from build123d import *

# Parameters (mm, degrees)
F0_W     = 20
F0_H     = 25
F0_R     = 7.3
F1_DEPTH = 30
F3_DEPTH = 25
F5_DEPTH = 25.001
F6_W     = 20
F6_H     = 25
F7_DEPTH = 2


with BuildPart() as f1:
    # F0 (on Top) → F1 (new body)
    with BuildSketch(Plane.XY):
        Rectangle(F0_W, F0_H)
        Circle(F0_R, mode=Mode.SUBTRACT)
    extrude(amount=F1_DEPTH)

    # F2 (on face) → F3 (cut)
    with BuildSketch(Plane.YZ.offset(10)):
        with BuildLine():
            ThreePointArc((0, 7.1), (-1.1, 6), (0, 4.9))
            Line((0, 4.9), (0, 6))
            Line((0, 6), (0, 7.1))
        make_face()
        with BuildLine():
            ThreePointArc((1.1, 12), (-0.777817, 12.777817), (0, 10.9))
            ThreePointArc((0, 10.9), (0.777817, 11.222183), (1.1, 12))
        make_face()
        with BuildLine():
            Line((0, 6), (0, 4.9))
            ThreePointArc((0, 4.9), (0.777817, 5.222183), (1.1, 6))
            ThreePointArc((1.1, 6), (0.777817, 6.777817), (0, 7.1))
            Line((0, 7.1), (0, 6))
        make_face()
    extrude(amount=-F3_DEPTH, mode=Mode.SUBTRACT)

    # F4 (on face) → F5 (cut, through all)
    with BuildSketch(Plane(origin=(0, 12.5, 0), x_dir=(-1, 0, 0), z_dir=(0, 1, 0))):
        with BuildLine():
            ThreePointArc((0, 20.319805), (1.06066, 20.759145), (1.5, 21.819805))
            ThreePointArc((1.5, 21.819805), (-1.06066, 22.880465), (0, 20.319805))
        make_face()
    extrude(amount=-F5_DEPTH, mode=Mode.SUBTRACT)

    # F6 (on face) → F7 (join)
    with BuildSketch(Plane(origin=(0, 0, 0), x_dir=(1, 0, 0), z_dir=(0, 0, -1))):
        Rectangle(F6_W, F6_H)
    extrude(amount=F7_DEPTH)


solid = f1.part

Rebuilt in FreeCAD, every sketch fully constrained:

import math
import FreeCAD as App
import Part
import Sketcher

doc = App.newDocument("Part")
params = doc.addObject("Spreadsheet::Sheet", "Params")
for row, (alias, value) in enumerate([
    ("sketch1_diameter", "14.6 mm"),
    ("sketch1_width", "20 mm"),
    ("sketch1_height", "25 mm"),
    ("pad1_length", "30 mm"),
    ("sketch2_radius", "1.1 mm"),
    ("pocket1_length", "25 mm"),
    ("sketch3_radius", "1.500001 mm"),
    ("sketch4_width", "20 mm"),
    ("sketch4_height", "25 mm"),
    ("pad2_length", "2 mm"),
], start=1):
    params.set(f"A{row}", alias)
    params.set(f"B{row}", "=" + value)
    params.setAlias(f"B{row}", alias)

body = doc.addObject("PartDesign::Body", "Body")

sketch1 = body.newObject("Sketcher::SketchObject", "Sketch")
sketch1.AttachmentSupport = (doc.getObject("XY_Plane"), [""])
sketch1.MapMode = "FlatFace"
sketch1.addGeometry(Part.LineSegment(App.Vector(-10, 12, 0), App.Vector(-10, -12, 0)), False)
sketch1.addGeometry(Part.LineSegment(App.Vector(-10, -12, 0), App.Vector(10, -12, 0)), False)
sketch1.addGeometry(Part.LineSegment(App.Vector(10, -12, 0), App.Vector(10, 12, 0)), False)
sketch1.addGeometry(Part.LineSegment(App.Vector(10, 12, 0), App.Vector(-10, 12, 0)), False)
sketch1.addGeometry(Part.Circle(App.Vector(0, 0, 0), App.Vector(0, 0, 1), 7), False)
sketch1.addConstraint(Sketcher.Constraint("Coincident", 0, 2, 1, 1))
sketch1.addConstraint(Sketcher.Constraint("Coincident", 1, 2, 2, 1))
sketch1.addConstraint(Sketcher.Constraint("Coincident", 2, 2, 3, 1))
sketch1.addConstraint(Sketcher.Constraint("Coincident", 3, 2, 0, 1))
sketch1.addConstraint(Sketcher.Constraint("Vertical", 0))
sketch1.addConstraint(Sketcher.Constraint("Horizontal", 1))
sketch1.addConstraint(Sketcher.Constraint("Vertical", 2))
sketch1.addConstraint(Sketcher.Constraint("Horizontal", 3))
sketch1.addConstraint(Sketcher.Constraint("Coincident", 4, 3, -1, 1))
sketch1.addConstraint(Sketcher.Constraint("Symmetric", 0, 2, 2, 2, -1, 1))
sketch1.addConstraint(Sketcher.Constraint("Diameter", 4, 14.6))
sketch1.addConstraint(Sketcher.Constraint("DistanceX", 1, 1, 1, 2, 20.0))
sketch1.addConstraint(Sketcher.Constraint("DistanceY", 0, 2, 0, 1, 25.0))
sketch1.setExpression("Constraints[10]", "Params.sketch1_diameter")
sketch1.setExpression("Constraints[11]", "Params.sketch1_width")
sketch1.setExpression("Constraints[12]", "Params.sketch1_height")
pad1 = body.newObject("PartDesign::Pad", "Pad")
pad1.Profile = sketch1
pad1.setExpression("Length", "Params.pad1_length")

sketch2 = body.newObject("Sketcher::SketchObject", "Sketch001")
sketch2.AttachmentSupport = (doc.getObject("YZ_Plane"), [""])
sketch2.MapMode = "FlatFace"
sketch2.AttachmentOffset = App.Placement(App.Vector(0, 0, 10), App.Rotation())
sketch2.addGeometry(Part.ArcOfCircle(Part.Circle(App.Vector(0, 6, 0), App.Vector(0, 0, 1), 1.1), math.radians(90), math.radians(270)), False)
sketch2.addGeometry(Part.ArcOfCircle(Part.Circle(App.Vector(0, 6, 0), App.Vector(0, 0, 1), 1.1), math.radians(-90), math.radians(0)), False)
sketch2.addGeometry(Part.ArcOfCircle(Part.Circle(App.Vector(0, 6, 0), App.Vector(0, 0, 1), 1.1), math.radians(0), math.radians(90)), False)
sketch2.addGeometry(Part.ArcOfCircle(Part.Circle(App.Vector(0, 12, 0), App.Vector(0, 0, 1), 1.1), math.radians(0), math.radians(270)), False)
sketch2.addGeometry(Part.ArcOfCircle(Part.Circle(App.Vector(0, 12, 0), App.Vector(0, 0, 1), 1.1), math.radians(-90), math.radians(0)), False)
sketch2.addConstraint(Sketcher.Constraint("Tangent", 0, 2, 1, 1))
sketch2.addConstraint(Sketcher.Constraint("Coincident", 1, 2, 2, 1))
sketch2.addConstraint(Sketcher.Constraint("Tangent", 2, 2, 0, 1))
sketch2.addConstraint(Sketcher.Constraint("Tangent", 3, 1, 4, 2))
sketch2.addConstraint(Sketcher.Constraint("Coincident", 4, 1, 3, 2))
sketch2.addConstraint(Sketcher.Constraint("Equal", 0, 1))
sketch2.addConstraint(Sketcher.Constraint("Equal", 2, 3))
sketch2.addConstraint(Sketcher.Constraint("PointOnObject", 0, 3, -2))
sketch2.addConstraint(Sketcher.Constraint("PointOnObject", 3, 3, -2))
sketch2.addConstraint(Sketcher.Constraint("PointOnObject", 0, 2, -2))
sketch2.addConstraint(Sketcher.Constraint("PointOnObject", 2, 2, -2))
sketch2.addConstraint(Sketcher.Constraint("PointOnObject", 4, 1, -2))
sketch2.addConstraint(Sketcher.Constraint("Horizontal", 2, 3, 1, 2))
sketch2.addConstraint(Sketcher.Constraint("Horizontal", 4, 3, 3, 1))
sketch2.addConstraint(Sketcher.Constraint("Radius", 0, 1.1))
sketch2.addConstraint(Sketcher.Constraint("DistanceY", -1, 1, 0, 3, 6.0))
sketch2.addConstraint(Sketcher.Constraint("DistanceY", -1, 1, 3, 3, 12.0))
sketch2.setExpression("Constraints[14]", "Params.sketch2_radius")
pocket1 = body.newObject("PartDesign::Pocket", "Pocket")
pocket1.Profile = sketch2
pocket1.setExpression("Length", "Params.pocket1_length")

sketch3 = body.newObject("Sketcher::SketchObject", "Sketch002")
sketch3.AttachmentSupport = (doc.getObject("XZ_Plane"), [""])
sketch3.MapMode = "FlatFace"
sketch3.AttachmentOffset = App.Placement(App.Vector(0, 0, -12.5), App.Rotation())
sketch3.addGeometry(Part.ArcOfCircle(Part.Circle(App.Vector(0, 21.8, 0), App.Vector(0, 0, 1), 1.5), math.radians(-180), math.radians(-90)), False)
sketch3.addGeometry(Part.ArcOfCircle(Part.Circle(App.Vector(0, 21.8, 0), App.Vector(0, 0, 1), 1.5), math.radians(-90), math.radians(180)), False)
sketch3.addConstraint(Sketcher.Constraint("Tangent", 0, 1, 1, 2))
sketch3.addConstraint(Sketcher.Constraint("Coincident", 1, 1, 0, 2))
sketch3.addConstraint(Sketcher.Constraint("PointOnObject", 0, 3, -2))
sketch3.addConstraint(Sketcher.Constraint("PointOnObject", 1, 1, -2))
sketch3.addConstraint(Sketcher.Constraint("Horizontal", 1, 3, 0, 1))
sketch3.addConstraint(Sketcher.Constraint("Radius", 0, 1.500001))
sketch3.addConstraint(Sketcher.Constraint("DistanceY", -1, 1, 0, 3, 21.819806))
sketch3.setExpression("Constraints[5]", "Params.sketch3_radius")
pocket2 = body.newObject("PartDesign::Pocket", "Pocket001")
pocket2.Profile = sketch3
pocket2.Type = "ThroughAll"
pocket2.Reversed = True

sketch4 = body.newObject("Sketcher::SketchObject", "Sketch003")
sketch4.AttachmentSupport = (doc.getObject("XY_Plane"), [""])
sketch4.MapMode = "FlatFace"
sketch4.addGeometry(Part.LineSegment(App.Vector(-10, -12, 0), App.Vector(-10, 12, 0)), False)
sketch4.addGeometry(Part.LineSegment(App.Vector(-10, 12, 0), App.Vector(10, 12, 0)), False)
sketch4.addGeometry(Part.LineSegment(App.Vector(10, 12, 0), App.Vector(10, -12, 0)), False)
sketch4.addGeometry(Part.LineSegment(App.Vector(10, -12, 0), App.Vector(-10, -12, 0)), False)
sketch4.addConstraint(Sketcher.Constraint("Coincident", 0, 2, 1, 1))
sketch4.addConstraint(Sketcher.Constraint("Coincident", 1, 2, 2, 1))
sketch4.addConstraint(Sketcher.Constraint("Coincident", 2, 2, 3, 1))
sketch4.addConstraint(Sketcher.Constraint("Coincident", 3, 2, 0, 1))
sketch4.addConstraint(Sketcher.Constraint("Vertical", 0))
sketch4.addConstraint(Sketcher.Constraint("Horizontal", 1))
sketch4.addConstraint(Sketcher.Constraint("Vertical", 2))
sketch4.addConstraint(Sketcher.Constraint("Horizontal", 3))
sketch4.addConstraint(Sketcher.Constraint("Symmetric", 0, 2, 2, 2, -1, 1))
sketch4.addConstraint(Sketcher.Constraint("DistanceX", 1, 1, 1, 2, 20.0))
sketch4.addConstraint(Sketcher.Constraint("DistanceY", 0, 1, 0, 2, 25.0))
sketch4.setExpression("Constraints[9]", "Params.sketch4_width")
sketch4.setExpression("Constraints[10]", "Params.sketch4_height")
pad2 = body.newObject("PartDesign::Pad", "Pad001")
pad2.Profile = sketch4
pad2.setExpression("Length", "Params.pad2_length")
pad2.Reversed = True

doc.recompute()
